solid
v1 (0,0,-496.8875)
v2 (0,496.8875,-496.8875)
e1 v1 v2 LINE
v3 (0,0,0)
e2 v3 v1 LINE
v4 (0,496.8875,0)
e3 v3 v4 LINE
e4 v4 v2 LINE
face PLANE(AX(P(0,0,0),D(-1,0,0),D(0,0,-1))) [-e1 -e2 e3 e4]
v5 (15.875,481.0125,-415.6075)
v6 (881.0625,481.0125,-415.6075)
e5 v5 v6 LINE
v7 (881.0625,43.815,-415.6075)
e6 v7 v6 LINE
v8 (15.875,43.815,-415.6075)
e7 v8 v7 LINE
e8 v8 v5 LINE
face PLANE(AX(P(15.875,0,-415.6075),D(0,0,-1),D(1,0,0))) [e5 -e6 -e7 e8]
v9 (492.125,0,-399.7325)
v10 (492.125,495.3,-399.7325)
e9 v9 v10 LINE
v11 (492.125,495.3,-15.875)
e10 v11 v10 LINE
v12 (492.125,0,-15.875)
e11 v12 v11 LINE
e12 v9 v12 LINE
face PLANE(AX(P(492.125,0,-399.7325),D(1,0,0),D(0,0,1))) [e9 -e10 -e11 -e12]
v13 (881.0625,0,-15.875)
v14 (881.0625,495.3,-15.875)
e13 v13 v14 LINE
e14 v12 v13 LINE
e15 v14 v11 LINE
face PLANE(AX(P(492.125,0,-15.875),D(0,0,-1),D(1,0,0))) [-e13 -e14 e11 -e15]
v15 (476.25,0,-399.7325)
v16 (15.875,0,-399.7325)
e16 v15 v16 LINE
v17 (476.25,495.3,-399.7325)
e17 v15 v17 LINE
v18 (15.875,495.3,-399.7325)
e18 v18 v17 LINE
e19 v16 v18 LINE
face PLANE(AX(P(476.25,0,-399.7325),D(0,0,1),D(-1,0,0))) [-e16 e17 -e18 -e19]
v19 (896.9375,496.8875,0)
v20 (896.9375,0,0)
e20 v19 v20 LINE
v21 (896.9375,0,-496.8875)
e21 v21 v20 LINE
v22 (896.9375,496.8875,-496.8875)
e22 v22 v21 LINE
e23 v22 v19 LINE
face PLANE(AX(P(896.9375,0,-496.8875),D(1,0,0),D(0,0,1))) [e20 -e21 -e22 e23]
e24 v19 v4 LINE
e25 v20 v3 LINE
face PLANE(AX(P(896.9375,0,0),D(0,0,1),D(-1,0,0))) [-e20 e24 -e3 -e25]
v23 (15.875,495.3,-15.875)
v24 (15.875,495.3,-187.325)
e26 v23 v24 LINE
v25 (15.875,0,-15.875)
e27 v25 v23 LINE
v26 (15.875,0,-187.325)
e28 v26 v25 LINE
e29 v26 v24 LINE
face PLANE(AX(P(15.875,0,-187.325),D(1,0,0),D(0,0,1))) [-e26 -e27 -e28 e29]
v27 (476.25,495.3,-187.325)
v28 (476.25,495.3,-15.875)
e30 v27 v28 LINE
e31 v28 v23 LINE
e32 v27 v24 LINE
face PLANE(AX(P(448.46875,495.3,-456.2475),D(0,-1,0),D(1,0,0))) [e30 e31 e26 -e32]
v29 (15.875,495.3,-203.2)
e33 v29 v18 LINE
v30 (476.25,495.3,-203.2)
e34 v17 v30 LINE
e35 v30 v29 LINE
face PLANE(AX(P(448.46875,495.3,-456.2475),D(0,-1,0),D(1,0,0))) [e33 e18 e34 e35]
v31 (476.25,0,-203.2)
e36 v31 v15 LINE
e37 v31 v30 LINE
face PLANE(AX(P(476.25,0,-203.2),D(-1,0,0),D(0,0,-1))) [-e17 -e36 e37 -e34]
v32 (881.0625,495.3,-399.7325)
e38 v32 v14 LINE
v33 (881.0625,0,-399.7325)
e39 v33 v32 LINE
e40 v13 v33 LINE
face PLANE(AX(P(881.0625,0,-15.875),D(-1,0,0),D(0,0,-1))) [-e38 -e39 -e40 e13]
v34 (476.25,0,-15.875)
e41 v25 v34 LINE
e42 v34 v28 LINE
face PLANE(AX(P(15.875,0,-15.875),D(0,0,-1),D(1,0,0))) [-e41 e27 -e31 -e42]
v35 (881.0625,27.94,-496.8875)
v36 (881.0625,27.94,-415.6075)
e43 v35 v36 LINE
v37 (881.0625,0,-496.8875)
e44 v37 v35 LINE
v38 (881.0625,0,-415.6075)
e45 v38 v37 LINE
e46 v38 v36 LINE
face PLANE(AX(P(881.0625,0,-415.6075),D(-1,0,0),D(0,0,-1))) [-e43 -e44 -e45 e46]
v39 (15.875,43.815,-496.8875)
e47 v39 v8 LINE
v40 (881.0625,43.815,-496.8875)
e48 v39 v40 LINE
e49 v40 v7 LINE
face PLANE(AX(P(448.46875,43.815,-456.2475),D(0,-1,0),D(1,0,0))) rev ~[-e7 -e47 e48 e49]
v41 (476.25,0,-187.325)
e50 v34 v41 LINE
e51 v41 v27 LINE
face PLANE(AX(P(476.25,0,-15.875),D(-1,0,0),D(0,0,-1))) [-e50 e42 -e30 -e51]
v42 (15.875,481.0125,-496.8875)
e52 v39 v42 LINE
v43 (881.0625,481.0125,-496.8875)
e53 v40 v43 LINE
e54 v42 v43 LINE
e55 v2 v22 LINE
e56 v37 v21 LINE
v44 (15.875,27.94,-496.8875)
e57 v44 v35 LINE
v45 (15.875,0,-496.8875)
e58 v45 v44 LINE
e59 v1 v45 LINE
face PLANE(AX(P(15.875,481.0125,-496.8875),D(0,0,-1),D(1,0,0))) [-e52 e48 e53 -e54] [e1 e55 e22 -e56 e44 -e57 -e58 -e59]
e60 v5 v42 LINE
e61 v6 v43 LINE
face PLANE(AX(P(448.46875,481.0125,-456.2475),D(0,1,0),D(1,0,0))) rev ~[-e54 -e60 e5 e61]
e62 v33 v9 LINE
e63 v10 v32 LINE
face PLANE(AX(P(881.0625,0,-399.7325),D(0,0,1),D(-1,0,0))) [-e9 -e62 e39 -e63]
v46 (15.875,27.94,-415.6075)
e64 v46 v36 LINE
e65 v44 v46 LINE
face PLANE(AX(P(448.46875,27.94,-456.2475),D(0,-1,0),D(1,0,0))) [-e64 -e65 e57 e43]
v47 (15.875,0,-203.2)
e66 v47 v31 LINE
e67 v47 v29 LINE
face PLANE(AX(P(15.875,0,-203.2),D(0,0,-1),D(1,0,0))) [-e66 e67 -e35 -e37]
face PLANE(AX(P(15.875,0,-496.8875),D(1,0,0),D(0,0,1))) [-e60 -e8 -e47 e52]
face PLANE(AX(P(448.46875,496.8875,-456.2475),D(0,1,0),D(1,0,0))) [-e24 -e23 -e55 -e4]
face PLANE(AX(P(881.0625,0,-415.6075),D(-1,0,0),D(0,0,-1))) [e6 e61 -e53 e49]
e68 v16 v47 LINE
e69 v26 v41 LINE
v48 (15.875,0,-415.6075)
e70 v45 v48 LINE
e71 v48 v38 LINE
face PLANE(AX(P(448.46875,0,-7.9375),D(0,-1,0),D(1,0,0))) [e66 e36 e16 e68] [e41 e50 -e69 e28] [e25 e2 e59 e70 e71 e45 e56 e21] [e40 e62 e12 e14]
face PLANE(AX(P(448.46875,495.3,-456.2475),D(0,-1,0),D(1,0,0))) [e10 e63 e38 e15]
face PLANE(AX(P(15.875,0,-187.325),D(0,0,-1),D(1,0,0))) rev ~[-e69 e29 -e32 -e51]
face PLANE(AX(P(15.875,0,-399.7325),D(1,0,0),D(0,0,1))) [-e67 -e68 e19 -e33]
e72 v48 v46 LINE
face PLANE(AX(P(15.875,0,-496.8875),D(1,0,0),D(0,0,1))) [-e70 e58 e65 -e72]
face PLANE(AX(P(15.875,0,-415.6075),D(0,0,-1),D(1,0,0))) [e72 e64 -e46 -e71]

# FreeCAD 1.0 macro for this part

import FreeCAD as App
import Part
import Sketcher
Q = App.Units.Quantity

doc = App.newDocument("Part")
body = doc.addObject("PartDesign::Body", "Body")

# Sketch on XZ plane
sketch1 = body.newObject("Sketcher::SketchObject", "Sketch")
sketch1.AttachmentSupport = (doc.getObject("XZ_Plane"), [""])
sketch1.MapMode = "FlatFace"
sketch1.addGeometry(Part.LineSegment(App.Vector(881, -416, 0), App.Vector(881, -497, 0)), False)
sketch1.addGeometry(Part.LineSegment(App.Vector(881, -497, 0), App.Vector(897, -497, 0)), False)
sketch1.addGeometry(Part.LineSegment(App.Vector(897, -497, 0), App.Vector(897, 0, 0)), False)
sketch1.addGeometry(Part.LineSegment(App.Vector(897, 0, 0), App.Vector(0, 0, 0)), False)
sketch1.addGeometry(Part.LineSegment(App.Vector(0, 0, 0), App.Vector(0, -497, 0)), False)
sketch1.addGeometry(Part.LineSegment(App.Vector(0, -497, 0), App.Vector(16, -497, 0)), False)
sketch1.addGeometry(Part.LineSegment(App.Vector(16, -497, 0), App.Vector(16, -416, 0)), False)
sketch1.addGeometry(Part.LineSegment(App.Vector(16, -416, 0), App.Vector(881, -416, 0)), False)
sketch1.addGeometry(Part.LineSegment(App.Vector(16, -16, 0), App.Vector(476, -16, 0)), False)
sketch1.addGeometry(Part.LineSegment(App.Vector(476, -16, 0), App.Vector(476, -187, 0)), False)
sketch1.addGeometry(Part.LineSegment(App.Vector(476, -187, 0), App.Vector(16, -187, 0)), False)
sketch1.addGeometry(Part.LineSegment(App.Vector(16, -187, 0), App.Vector(16, -16, 0)), False)
sketch1.addGeometry(Part.LineSegment(App.Vector(492, -16, 0), App.Vector(881, -16, 0)), False)
sketch1.addGeometry(Part.LineSegment(App.Vector(881, -16, 0), App.Vector(881, -400, 0)), False)
sketch1.addGeometry(Part.LineSegment(App.Vector(881, -400, 0), App.Vector(492, -400, 0)), False)
sketch1.addGeometry(Part.LineSegment(App.Vector(492, -400, 0), App.Vector(492, -16, 0)), False)
sketch1.addGeometry(Part.LineSegment(App.Vector(16, -400, 0), App.Vector(16, -203, 0)), False)
sketch1.addGeometry(Part.LineSegment(App.Vector(16, -203, 0), App.Vector(476, -203, 0)), False)
sketch1.addGeometry(Part.LineSegment(App.Vector(476, -203, 0), App.Vector(476, -400, 0)), False)
sketch1.addGeometry(Part.LineSegment(App.Vector(476, -400, 0), App.Vector(16, -400, 0)), False)
sketch1.addConstraint(Sketcher.Constraint("Coincident", 0, 2, 1, 1))
sketch1.addConstraint(Sketcher.Constraint("Coincident", 1, 2, 2, 1))
sketch1.addConstraint(Sketcher.Constraint("Coincident", 2, 2, 3, 1))
sketch1.addConstraint(Sketcher.Constraint("Coincident", 3, 2, 4, 1))
sketch1.addConstraint(Sketcher.Constraint("Coincident", 4, 2, 5, 1))
sketch1.addConstraint(Sketcher.Constraint("Coincident", 5, 2, 6, 1))
sketch1.addConstraint(Sketcher.Constraint("Coincident", 6, 2, 7, 1))
sketch1.addConstraint(Sketcher.Constraint("Coincident", 7, 2, 0, 1))
sketch1.addConstraint(Sketcher.Constraint("Coincident", 8, 2, 9, 1))
sketch1.addConstraint(Sketcher.Constraint("Coincident", 9, 2, 10, 1))
sketch1.addConstraint(Sketcher.Constraint("Coincident", 10, 2, 11, 1))
sketch1.addConstraint(Sketcher.Constraint("Coincident", 11, 2, 8, 1))
sketch1.addConstraint(Sketcher.Constraint("Coincident", 12, 2, 13, 1))
sketch1.addConstraint(Sketcher.Constraint("Coincident", 13, 2, 14, 1))
sketch1.addConstraint(Sketcher.Constraint("Coincident", 14, 2, 15, 1))
sketch1.addConstraint(Sketcher.Constraint("Coincident", 15, 2, 12, 1))
sketch1.addConstraint(Sketcher.Constraint("Coincident", 16, 2, 17, 1))
sketch1.addConstraint(Sketcher.Constraint("Coincident", 17, 2, 18, 1))
sketch1.addConstraint(Sketcher.Constraint("Coincident", 18, 2, 19, 1))
sketch1.addConstraint(Sketcher.Constraint("Coincident", 19, 2, 16, 1))
sketch1.addConstraint(Sketcher.Constraint("Vertical", 0))
sketch1.addConstraint(Sketcher.Constraint("Horizontal", 1))
sketch1.addConstraint(Sketcher.Constraint("Vertical", 2))
sketch1.addConstraint(Sketcher.Constraint("Horizontal", 3))
sketch1.addConstraint(Sketcher.Constraint("Vertical", 4))
sketch1.addConstraint(Sketcher.Constraint("Horizontal", 5))
sketch1.addConstraint(Sketcher.Constraint("Vertical", 6))
sketch1.addConstraint(Sketcher.Constraint("Horizontal", 7))
sketch1.addConstraint(Sketcher.Constraint("Horizontal", 8))
sketch1.addConstraint(Sketcher.Constraint("Vertical", 9))
sketch1.addConstraint(Sketcher.Constraint("Horizontal", 10))
sketch1.addConstraint(Sketcher.Constraint("Vertical", 11))
sketch1.addConstraint(Sketcher.Constraint("Horizontal", 12))
sketch1.addConstraint(Sketcher.Constraint("Vertical", 13))
sketch1.addConstraint(Sketcher.Constraint("Horizontal", 14))
sketch1.addConstraint(Sketcher.Constraint("Vertical", 15))
sketch1.addConstraint(Sketcher.Constraint("Vertical", 16))
sketch1.addConstraint(Sketcher.Constraint("Horizontal", 17))
sketch1.addConstraint(Sketcher.Constraint("Vertical", 18))
sketch1.addConstraint(Sketcher.Constraint("Horizontal", 19))
sketch1.addConstraint(Sketcher.Constraint("Coincident", 3, 2, -1, 1))
sketch1.addConstraint(Sketcher.Constraint("Horizontal", 1, 2, 4, 2))
sketch1.addConstraint(Sketcher.Constraint("Horizontal", 11, 2, 12, 2))
sketch1.addConstraint(Sketcher.Constraint("Horizontal", 14, 2, 18, 2))
sketch1.addConstraint(Sketcher.Constraint("Vertical", 6, 2, 10, 2))
sketch1.addConstraint(Sketcher.Constraint("Vertical", 7, 2, 12, 2))
sketch1.addConstraint(Sketcher.Constraint("Vertical", 11, 2, 16, 2))
sketch1.addConstraint(Sketcher.Constraint("Vertical", 9, 2, 17, 2))
sketch1.addConstraint(Sketcher.Constraint("Equal", 1, 5))
sketch1.addConstraint(Sketcher.Constraint("DistanceY", 0, 2, 0, 1, Q("3.2 in")))
sketch1.addConstraint(Sketcher.Constraint("DistanceY", 16, 2, -1, 1, Q("8 in")))
sketch1.addConstraint(Sketcher.Constraint("DistanceY", 9, 2, 9, 1, Q("6.75 in")))
sketch1.addConstraint(Sketcher.Constraint("DistanceX", 1, 1, 1, 2, Q("0.625 in")))
sketch1.addConstraint(Sketcher.Constraint("DistanceX", 3, 2, 3, 1, Q("35.3125 in")))
sketch1.addConstraint(Sketcher.Constraint("DistanceX", 8, 1, 8, 2, Q("18.125 in")))
sketch1.addConstraint(Sketcher.Constraint("DistanceX", 12, 1, 12, 2, Q("15.3125 in")))
sketch1.addConstraint(Sketcher.Constraint("DistanceY", 2, 1, 2, 2, Q("19.5625 in")))
sketch1.addConstraint(Sketcher.Constraint("DistanceY", 13, 2, 13, 1, Q("15.1125 in")))
sketch1.addConstraint(Sketcher.Constraint("DistanceY", 16, 1, 16, 2, Q("7.7375 in")))
pad1 = body.newObject("PartDesign::Pad", "Pad")
pad1.Profile = sketch1
pad1.Length = Q("19.5625 in")
pad1.Reversed = True

# Sketch on XZ plane
sketch2 = body.newObject("Sketcher::SketchObject", "Sketch001")
sketch2.AttachmentSupport = (doc.getObject("XZ_Plane"), [""])
sketch2.MapMode = "FlatFace"
sketch2.AttachmentOffset = App.Placement(App.Vector(0, 0, -1.1 * 25.4), App.Rotation())
sketch2.addGeometry(Part.LineSegment(App.Vector(16, -416, 0), App.Vector(16, -497, 0)), False)
sketch2.addGeometry(Part.LineSegment(App.Vector(16, -497, 0), App.Vector(881, -497, 0)), False)
sketch2.addGeometry(Part.LineSegment(App.Vector(881, -497, 0), App.Vector(881, -416, 0)), False)
sketch2.addGeometry(Part.LineSegment(App.Vector(881, -416, 0), App.Vector(16, -416, 0)), False)
sketch2.addConstraint(Sketcher.Constraint("Coincident", 0, 2, 1, 1))
sketch2.addConstraint(Sketcher.Constraint("Coincident", 1, 2, 2, 1))
sketch2.addConstraint(Sketcher.Constraint("Coincident", 2, 2, 3, 1))
sketch2.addConstraint(Sketcher.Constraint("Coincident", 3, 2, 0, 1))
sketch2.addConstraint(Sketcher.Constraint("Vertical", 0))
sketch2.addConstraint(Sketcher.Constraint("Horizontal", 1))
sketch2.addConstraint(Sketcher.Constraint("Vertical", 2))
sketch2.addConstraint(Sketcher.Constraint("Horizontal", 3))
sketch2.addConstraint(Sketcher.Constraint("DistanceY", 0, 2, 0, 1, Q("3.2 in")))
sketch2.addConstraint(Sketcher.Constraint("DistanceX", 1, 1, 1, 2, Q("34.0625 in")))
sketch2.addConstraint(Sketcher.Constraint("DistanceX", -1, 1, 0, 2, Q("0.625 in")))
sketch2.addConstraint(Sketcher.Constraint("DistanceY", 0, 2, -1, 1, Q("19.5625 in")))
pad2 = body.newObject("PartDesign::Pad", "Pad001")
pad2.Profile = sketch2
pad2.Length = Q("0.625 in")
pad2.Reversed = True

# Sketch on XZ plane
sketch3 = body.newObject("Sketcher::SketchObject", "Sketch002")
sketch3.AttachmentSupport = (doc.getObject("XZ_Plane"), [""])
sketch3.MapMode = "FlatFace"
sketch3.AttachmentOffset = App.Placement(App.Vector(0, 0, -18.9375 * 25.4), App.Rotation())
sketch3.addGeometry(Part.LineSegment(App.Vector(16, -497, 0), App.Vector(16, -416, 0)), False)
sketch3.addGeometry(Part.LineSegment(App.Vector(16, -416, 0), App.Vector(881, -416, 0)), False)
sketch3.addGeometry(Part.LineSegment(App.Vector(881, -416, 0), App.Vector(881, -497, 0)), False)
sketch3.addGeometry(Part.LineSegment(App.Vector(881, -497, 0), App.Vector(16, -497, 0)), False)
sketch3.addConstraint(Sketcher.Constraint("Coincident", 0, 2, 1, 1))
sketch3.addConstraint(Sketcher.Constraint("Coincident", 1, 2, 2, 1))
sketch3.addConstraint(Sketcher.Constraint("Coincident", 2, 2, 3, 1))
sketch3.addConstraint(Sketcher.Constraint("Coincident", 3, 2, 0, 1))
sketch3.addConstraint(Sketcher.Constraint("Vertical", 0))
sketch3.addConstraint(Sketcher.Constraint("Horizontal", 1))
sketch3.addConstraint(Sketcher.Constraint("Vertical", 2))
sketch3.addConstraint(Sketcher.Constraint("Horizontal", 3))
sketch3.addConstraint(Sketcher.Constraint("DistanceY", 0, 1, 0, 2, Q("3.2 in")))
sketch3.addConstraint(Sketcher.Constraint("DistanceX", 1, 1, 1, 2, Q("34.0625 in")))
sketch3.addConstraint(Sketcher.Constraint("DistanceX", -1, 1, 0, 2, Q("0.625 in")))
sketch3.addConstraint(Sketcher.Constraint("DistanceY", 2, 2, -1, 1, Q("19.5625 in")))
pad3 = body.newObject("PartDesign::Pad", "Pad002")
pad3.Profile = sketch3
pad3.Length = Q("0.625 in")
pad3.Reversed = True

# Sketch on XZ plane
sketch4 = body.newObject("Sketcher::SketchObject", "Sketch003")
sketch4.AttachmentSupport = (doc.getObject("XZ_Plane"), [""])
sketch4.MapMode = "FlatFace"
sketch4.AttachmentOffset = App.Placement(App.Vector(0, 0, -19.5 * 25.4), App.Rotation())
sketch4.addGeometry(Part.LineSegment(App.Vector(897, -497, 0), App.Vector(897, 0, 0)), False)
sketch4.addGeometry(Part.LineSegment(App.Vector(897, 0, 0), App.Vector(0, 0, 0)), False)
sketch4.addGeometry(Part.LineSegment(App.Vector(0, 0, 0), App.Vector(0, -497, 0)), False)
sketch4.addGeometry(Part.LineSegment(App.Vector(0, -497, 0), App.Vector(897, -497, 0)), False)
sketch4.addConstraint(Sketcher.Constraint("Coincident", 0, 2, 1, 1))
sketch4.addConstraint(Sketcher.Constraint("Coincident", 1, 2, 2, 1))
sketch4.addConstraint(Sketcher.Constraint("Coincident", 2, 2, 3, 1))
sketch4.addConstraint(Sketcher.Constraint("Coincident", 3, 2, 0, 1))
sketch4.addConstraint(Sketcher.Constraint("Vertical", 0))
sketch4.addConstraint(Sketcher.Constraint("Horizontal", 1))
sketch4.addConstraint(Sketcher.Constraint("Vertical", 2))
sketch4.addConstraint(Sketcher.Constraint("Horizontal", 3))
sketch4.addConstraint(Sketcher.Constraint("Coincident", 1, 2, -1, 1))
sketch4.addConstraint(Sketcher.Constraint("DistanceX", 1, 2, 1, 1, Q("35.3125 in")))
sketch4.addConstraint(Sketcher.Constraint("DistanceY", 0, 1, 0, 2, Q("19.5625 in")))
pad4 = body.newObject("PartDesign::Pad", "Pad003")
pad4.Profile = sketch4
pad4.Length = Q("0.0625 in")
pad4.Reversed = True

doc.recompute()
